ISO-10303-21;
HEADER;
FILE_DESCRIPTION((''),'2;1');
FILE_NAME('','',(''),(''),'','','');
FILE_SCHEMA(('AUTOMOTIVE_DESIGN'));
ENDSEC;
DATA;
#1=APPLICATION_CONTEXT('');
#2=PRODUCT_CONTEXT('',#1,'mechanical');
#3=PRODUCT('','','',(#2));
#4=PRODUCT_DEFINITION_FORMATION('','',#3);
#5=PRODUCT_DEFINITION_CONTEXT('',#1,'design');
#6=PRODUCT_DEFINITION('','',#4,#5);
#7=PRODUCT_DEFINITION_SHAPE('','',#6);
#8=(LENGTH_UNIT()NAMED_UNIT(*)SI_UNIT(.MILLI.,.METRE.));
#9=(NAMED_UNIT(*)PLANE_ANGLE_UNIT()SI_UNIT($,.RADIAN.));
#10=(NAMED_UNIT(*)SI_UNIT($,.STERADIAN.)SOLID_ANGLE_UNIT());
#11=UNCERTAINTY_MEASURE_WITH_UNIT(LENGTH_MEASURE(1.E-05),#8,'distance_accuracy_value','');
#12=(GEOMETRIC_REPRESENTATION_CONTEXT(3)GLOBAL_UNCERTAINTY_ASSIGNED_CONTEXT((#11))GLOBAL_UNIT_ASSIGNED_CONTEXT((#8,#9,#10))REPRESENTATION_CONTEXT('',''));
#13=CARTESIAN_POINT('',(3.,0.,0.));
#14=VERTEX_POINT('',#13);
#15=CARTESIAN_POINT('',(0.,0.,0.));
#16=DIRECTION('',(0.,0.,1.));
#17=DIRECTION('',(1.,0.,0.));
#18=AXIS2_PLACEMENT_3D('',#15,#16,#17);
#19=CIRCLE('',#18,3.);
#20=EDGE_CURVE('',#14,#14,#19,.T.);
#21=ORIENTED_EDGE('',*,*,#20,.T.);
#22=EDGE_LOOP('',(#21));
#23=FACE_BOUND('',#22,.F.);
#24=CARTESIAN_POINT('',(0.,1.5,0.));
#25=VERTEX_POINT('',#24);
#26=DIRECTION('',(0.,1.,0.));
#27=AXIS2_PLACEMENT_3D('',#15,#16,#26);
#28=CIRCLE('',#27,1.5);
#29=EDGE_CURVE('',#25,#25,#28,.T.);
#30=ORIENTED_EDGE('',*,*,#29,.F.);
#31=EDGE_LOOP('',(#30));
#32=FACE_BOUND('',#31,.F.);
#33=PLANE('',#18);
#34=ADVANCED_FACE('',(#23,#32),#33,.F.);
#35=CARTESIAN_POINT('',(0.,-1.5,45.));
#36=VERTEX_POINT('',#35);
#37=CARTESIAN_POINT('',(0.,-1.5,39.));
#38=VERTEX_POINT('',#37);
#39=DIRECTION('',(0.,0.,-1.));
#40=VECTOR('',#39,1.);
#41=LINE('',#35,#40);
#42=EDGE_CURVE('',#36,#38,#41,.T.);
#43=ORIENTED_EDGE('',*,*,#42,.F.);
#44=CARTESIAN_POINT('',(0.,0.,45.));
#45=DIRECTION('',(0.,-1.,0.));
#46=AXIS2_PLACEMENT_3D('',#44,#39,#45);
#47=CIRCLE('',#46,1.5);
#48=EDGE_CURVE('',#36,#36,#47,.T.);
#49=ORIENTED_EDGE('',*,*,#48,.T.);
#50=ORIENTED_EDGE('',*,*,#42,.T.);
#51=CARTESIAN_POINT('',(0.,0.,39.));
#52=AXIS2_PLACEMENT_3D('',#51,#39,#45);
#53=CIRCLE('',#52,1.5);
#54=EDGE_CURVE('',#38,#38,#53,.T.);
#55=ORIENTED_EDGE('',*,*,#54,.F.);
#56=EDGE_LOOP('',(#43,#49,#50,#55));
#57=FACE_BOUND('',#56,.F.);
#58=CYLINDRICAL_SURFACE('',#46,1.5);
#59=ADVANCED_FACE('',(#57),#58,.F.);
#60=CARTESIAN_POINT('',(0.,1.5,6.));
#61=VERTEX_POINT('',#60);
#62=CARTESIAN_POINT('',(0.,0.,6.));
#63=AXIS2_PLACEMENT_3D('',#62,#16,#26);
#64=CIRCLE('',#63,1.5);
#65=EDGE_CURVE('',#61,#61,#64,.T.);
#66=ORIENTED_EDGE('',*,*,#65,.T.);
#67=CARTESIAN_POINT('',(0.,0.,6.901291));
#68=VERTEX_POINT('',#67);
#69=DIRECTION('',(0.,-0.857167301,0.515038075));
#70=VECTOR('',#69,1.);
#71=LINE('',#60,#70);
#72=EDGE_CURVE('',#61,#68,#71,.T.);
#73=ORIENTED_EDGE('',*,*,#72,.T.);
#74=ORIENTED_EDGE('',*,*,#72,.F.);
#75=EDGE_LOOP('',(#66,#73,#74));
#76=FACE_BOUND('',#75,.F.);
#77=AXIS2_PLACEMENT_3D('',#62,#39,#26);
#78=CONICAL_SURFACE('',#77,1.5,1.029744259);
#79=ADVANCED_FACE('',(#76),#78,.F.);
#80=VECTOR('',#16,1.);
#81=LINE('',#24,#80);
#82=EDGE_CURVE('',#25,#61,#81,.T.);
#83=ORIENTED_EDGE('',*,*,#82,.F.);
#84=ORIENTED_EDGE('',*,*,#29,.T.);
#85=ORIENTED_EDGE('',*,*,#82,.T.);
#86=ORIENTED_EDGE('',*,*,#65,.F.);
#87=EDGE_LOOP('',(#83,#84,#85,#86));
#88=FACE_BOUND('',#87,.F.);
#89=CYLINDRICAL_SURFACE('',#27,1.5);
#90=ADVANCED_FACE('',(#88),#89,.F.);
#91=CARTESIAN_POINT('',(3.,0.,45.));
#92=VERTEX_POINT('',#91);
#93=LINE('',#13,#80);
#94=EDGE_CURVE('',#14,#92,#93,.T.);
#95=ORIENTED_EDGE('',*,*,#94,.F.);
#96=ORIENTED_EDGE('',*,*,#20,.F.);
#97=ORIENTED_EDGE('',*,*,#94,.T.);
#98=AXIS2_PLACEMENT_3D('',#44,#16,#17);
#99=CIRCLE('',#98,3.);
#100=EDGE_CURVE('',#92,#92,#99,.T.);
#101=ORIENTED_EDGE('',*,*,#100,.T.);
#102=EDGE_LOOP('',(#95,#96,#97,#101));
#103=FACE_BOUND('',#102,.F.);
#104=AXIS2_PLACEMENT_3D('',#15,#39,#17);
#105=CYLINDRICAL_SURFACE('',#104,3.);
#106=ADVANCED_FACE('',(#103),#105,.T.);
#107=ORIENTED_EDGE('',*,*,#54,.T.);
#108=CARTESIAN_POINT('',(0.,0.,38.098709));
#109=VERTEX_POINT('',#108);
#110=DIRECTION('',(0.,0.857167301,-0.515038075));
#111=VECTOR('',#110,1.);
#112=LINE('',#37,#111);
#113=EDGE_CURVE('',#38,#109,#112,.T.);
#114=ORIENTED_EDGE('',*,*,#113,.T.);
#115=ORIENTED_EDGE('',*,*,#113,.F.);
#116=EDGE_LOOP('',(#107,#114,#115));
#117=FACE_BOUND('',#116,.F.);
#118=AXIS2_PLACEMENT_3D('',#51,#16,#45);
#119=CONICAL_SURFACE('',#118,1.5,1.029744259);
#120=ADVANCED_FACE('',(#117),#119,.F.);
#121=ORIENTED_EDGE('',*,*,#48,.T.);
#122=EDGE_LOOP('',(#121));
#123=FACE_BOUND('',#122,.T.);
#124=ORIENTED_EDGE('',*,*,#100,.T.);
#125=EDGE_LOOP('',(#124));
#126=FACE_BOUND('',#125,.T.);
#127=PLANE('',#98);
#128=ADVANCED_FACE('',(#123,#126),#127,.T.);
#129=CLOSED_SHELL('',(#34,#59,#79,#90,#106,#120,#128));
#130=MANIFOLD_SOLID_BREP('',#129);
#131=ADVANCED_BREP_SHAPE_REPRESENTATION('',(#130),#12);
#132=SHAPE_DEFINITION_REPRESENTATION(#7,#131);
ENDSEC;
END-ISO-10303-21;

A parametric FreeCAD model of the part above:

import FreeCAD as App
import Part
import Sketcher

V = App.Vector
Q = App.Units.Quantity

doc = App.newDocument("Part")
body = doc.addObject("PartDesign::Body", "Body")

sketch1 = body.newObject("Sketcher::SketchObject", "Sketch")
sketch1.AttachmentSupport = (doc.getObject("XY_Plane"), [""])
sketch1.MapMode = "FlatFace"
sketch1.addGeometry(Part.Circle(V(0, 0, 0), V(0, 0, 1), 3), False)
sketch1.addConstraint([
    Sketcher.Constraint("Coincident", 0, 3, -1, 1),
    Sketcher.Constraint("Diameter", 0, Q("6 mm")),
])
pad1 = body.newObject("PartDesign::Pad", "Pad")
pad1.Profile = sketch1
pad1.Length = 45

sketch2 = body.newObject("Sketcher::SketchObject", "Sketch001")
sketch2.AttachmentSupport = (doc.getObject("XY_Plane"), [""])
sketch2.MapMode = "FlatFace"
sketch2.addGeometry(Part.Circle(V(0, 0, 0), V(0, 0, 1), 1.5), False)
sketch2.addConstraint([
    Sketcher.Constraint("Coincident", 0, 3, -1, 1),
    Sketcher.Constraint("Diameter", 0, Q("3 mm")),
])
doc.recompute()
hole = body.newObject("PartDesign::Hole", "Hole")
hole.Profile = sketch2
hole.ThreadType = "None"
hole.Diameter = 3
hole.DepthType = "Dimension"
hole.Depth = 6
hole.DrillPoint = "Angled"
hole.DrillPointAngle = 118
hole.Reversed = True

sketch3 = body.newObject("Sketcher::SketchObject", "Sketch002")
sketch3.AttachmentSupport = (doc.getObject("XY_Plane"), [""])
sketch3.MapMode = "FlatFace"
sketch3.AttachmentOffset = App.Placement(V(0, 0, 45), App.Rotation())
sketch3.addGeometry(Part.Circle(V(0, 0, 0), V(0, 0, 1), 1.5), False)
sketch3.addConstraint([
    Sketcher.Constraint("Coincident", 0, 3, -1, 1),
    Sketcher.Constraint("Diameter", 0, Q("3 mm")),
])
doc.recompute()
hole2 = body.newObject("PartDesign::Hole", "Hole001")
hole2.Profile = sketch3
hole2.ThreadType = "None"
hole2.Diameter = 3
hole2.DepthType = "Dimension"
hole2.Depth = 6
hole2.DrillPoint = "Angled"
hole2.DrillPointAngle = 118

doc.recompute()
